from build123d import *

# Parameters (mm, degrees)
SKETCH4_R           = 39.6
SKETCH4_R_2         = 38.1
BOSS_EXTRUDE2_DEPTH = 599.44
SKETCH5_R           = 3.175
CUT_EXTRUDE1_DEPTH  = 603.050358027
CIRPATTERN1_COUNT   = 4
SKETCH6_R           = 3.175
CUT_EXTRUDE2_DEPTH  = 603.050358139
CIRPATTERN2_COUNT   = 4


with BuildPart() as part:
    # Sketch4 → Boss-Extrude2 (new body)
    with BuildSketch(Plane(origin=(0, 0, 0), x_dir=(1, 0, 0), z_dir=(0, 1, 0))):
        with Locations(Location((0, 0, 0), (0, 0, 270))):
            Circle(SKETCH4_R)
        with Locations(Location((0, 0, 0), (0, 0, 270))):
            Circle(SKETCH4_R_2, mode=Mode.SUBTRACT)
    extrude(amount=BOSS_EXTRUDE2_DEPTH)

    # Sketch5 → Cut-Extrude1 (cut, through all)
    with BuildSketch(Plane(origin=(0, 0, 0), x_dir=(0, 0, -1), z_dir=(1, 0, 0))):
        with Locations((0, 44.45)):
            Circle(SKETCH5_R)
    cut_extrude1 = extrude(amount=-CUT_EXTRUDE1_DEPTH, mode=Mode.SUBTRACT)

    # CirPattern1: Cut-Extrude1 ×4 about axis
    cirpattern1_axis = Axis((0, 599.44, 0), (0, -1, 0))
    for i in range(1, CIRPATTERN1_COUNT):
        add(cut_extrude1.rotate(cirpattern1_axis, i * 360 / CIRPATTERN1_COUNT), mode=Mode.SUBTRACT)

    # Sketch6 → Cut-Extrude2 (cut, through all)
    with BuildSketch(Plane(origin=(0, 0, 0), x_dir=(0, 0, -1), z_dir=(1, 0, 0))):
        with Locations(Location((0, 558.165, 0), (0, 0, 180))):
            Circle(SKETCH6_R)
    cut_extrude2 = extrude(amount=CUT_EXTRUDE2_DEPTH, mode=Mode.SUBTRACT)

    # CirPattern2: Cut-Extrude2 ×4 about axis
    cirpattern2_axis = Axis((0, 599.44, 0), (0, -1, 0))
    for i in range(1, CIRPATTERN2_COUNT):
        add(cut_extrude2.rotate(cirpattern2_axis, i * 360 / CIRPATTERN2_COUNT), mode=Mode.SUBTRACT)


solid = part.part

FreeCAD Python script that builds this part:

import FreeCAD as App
import Part
import Sketcher
from FreeCAD import Vector
Q = App.Units.Quantity

doc = App.newDocument("Part")
body = doc.addObject("PartDesign::Body", "Body")

# Sketch on XZ plane
sketch1 = body.newObject("Sketcher::SketchObject", "Sketch")
sketch1.AttachmentSupport = (doc.getObject("XZ_Plane"), [""])
sketch1.MapMode = "FlatFace"
sketch1.addGeometry(Part.Circle(Vector(0, 0, 0), Vector(0, 0, 1), 39.6), False)
sketch1.addGeometry(Part.Circle(Vector(0, 0, 0), Vector(0, 0, 1), 38.1), False)
sketch1.addConstraint(Sketcher.Constraint("Coincident", 0, 3, -1, 1))
sketch1.addConstraint(Sketcher.Constraint("Coincident", 1, 3, -1, 1))
sketch1.addConstraint(Sketcher.Constraint("Diameter", 1, Q("3 in")))
sketch1.addConstraint(Sketcher.Constraint("Diameter", 0, 79.2))
pad1 = body.newObject("PartDesign::Pad", "Pad")
pad1.Profile = sketch1
pad1.Length = Q("23.6 in")
pad1.Reversed = True

# Sketch on YZ plane
sketch2 = body.newObject("Sketcher::SketchObject", "Sketch001")
sketch2.AttachmentSupport = (doc.getObject("YZ_Plane"), [""])
sketch2.MapMode = "FlatFace"
sketch2.addGeometry(Part.Circle(Vector(44.45, 0, 0), Vector(0, 0, 1), 3.175), False)
sketch2.addConstraint(Sketcher.Constraint("PointOnObject", 0, 3, -1))
sketch2.addConstraint(Sketcher.Constraint("Diameter", 0, Q("0.25 in")))
sketch2.addConstraint(Sketcher.Constraint("DistanceX", -1, 1, 0, 3, Q("1.75 in")))
pocket1 = body.newObject("PartDesign::Pocket", "Pocket")
pocket1.Profile = sketch2
pocket1.Type = "ThroughAll"
doc.recompute()

polarpattern = body.newObject("PartDesign::PolarPattern", "PolarPattern")
polarpattern.Originals = [pocket1]
polarpattern.Axis = (doc.getObject("Y_Axis"), [""])
polarpattern.Angle = 360
polarpattern.Occurrences = 4
body.Tip = polarpattern

# Sketch on YZ plane
sketch3 = body.newObject("Sketcher::SketchObject", "Sketch002")
sketch3.AttachmentSupport = (doc.getObject("YZ_Plane"), [""])
sketch3.MapMode = "FlatFace"
sketch3.addGeometry(Part.Circle(Vector(558.165, 0, 0), Vector(0, 0, 1), 3.175), False)
sketch3.addConstraint(Sketcher.Constraint("PointOnObject", 0, 3, -1))
sketch3.addConstraint(Sketcher.Constraint("Diameter", 0, Q("0.25 in")))
sketch3.addConstraint(Sketcher.Constraint("DistanceX", -1, 1, 0, 3, Q("21.975 in")))
pocket2 = body.newObject("PartDesign::Pocket", "Pocket001")
pocket2.Profile = sketch3
pocket2.Type = "ThroughAll"
pocket2.Reversed = True
doc.recompute()

polarpattern2 = body.newObject("PartDesign::PolarPattern", "PolarPattern001")
polarpattern2.Originals = [pocket2]
polarpattern2.Axis = (doc.getObject("Y_Axis"), [""])
polarpattern2.Angle = 360
polarpattern2.Occurrences = 4
body.Tip = polarpattern2

doc.recompute()
